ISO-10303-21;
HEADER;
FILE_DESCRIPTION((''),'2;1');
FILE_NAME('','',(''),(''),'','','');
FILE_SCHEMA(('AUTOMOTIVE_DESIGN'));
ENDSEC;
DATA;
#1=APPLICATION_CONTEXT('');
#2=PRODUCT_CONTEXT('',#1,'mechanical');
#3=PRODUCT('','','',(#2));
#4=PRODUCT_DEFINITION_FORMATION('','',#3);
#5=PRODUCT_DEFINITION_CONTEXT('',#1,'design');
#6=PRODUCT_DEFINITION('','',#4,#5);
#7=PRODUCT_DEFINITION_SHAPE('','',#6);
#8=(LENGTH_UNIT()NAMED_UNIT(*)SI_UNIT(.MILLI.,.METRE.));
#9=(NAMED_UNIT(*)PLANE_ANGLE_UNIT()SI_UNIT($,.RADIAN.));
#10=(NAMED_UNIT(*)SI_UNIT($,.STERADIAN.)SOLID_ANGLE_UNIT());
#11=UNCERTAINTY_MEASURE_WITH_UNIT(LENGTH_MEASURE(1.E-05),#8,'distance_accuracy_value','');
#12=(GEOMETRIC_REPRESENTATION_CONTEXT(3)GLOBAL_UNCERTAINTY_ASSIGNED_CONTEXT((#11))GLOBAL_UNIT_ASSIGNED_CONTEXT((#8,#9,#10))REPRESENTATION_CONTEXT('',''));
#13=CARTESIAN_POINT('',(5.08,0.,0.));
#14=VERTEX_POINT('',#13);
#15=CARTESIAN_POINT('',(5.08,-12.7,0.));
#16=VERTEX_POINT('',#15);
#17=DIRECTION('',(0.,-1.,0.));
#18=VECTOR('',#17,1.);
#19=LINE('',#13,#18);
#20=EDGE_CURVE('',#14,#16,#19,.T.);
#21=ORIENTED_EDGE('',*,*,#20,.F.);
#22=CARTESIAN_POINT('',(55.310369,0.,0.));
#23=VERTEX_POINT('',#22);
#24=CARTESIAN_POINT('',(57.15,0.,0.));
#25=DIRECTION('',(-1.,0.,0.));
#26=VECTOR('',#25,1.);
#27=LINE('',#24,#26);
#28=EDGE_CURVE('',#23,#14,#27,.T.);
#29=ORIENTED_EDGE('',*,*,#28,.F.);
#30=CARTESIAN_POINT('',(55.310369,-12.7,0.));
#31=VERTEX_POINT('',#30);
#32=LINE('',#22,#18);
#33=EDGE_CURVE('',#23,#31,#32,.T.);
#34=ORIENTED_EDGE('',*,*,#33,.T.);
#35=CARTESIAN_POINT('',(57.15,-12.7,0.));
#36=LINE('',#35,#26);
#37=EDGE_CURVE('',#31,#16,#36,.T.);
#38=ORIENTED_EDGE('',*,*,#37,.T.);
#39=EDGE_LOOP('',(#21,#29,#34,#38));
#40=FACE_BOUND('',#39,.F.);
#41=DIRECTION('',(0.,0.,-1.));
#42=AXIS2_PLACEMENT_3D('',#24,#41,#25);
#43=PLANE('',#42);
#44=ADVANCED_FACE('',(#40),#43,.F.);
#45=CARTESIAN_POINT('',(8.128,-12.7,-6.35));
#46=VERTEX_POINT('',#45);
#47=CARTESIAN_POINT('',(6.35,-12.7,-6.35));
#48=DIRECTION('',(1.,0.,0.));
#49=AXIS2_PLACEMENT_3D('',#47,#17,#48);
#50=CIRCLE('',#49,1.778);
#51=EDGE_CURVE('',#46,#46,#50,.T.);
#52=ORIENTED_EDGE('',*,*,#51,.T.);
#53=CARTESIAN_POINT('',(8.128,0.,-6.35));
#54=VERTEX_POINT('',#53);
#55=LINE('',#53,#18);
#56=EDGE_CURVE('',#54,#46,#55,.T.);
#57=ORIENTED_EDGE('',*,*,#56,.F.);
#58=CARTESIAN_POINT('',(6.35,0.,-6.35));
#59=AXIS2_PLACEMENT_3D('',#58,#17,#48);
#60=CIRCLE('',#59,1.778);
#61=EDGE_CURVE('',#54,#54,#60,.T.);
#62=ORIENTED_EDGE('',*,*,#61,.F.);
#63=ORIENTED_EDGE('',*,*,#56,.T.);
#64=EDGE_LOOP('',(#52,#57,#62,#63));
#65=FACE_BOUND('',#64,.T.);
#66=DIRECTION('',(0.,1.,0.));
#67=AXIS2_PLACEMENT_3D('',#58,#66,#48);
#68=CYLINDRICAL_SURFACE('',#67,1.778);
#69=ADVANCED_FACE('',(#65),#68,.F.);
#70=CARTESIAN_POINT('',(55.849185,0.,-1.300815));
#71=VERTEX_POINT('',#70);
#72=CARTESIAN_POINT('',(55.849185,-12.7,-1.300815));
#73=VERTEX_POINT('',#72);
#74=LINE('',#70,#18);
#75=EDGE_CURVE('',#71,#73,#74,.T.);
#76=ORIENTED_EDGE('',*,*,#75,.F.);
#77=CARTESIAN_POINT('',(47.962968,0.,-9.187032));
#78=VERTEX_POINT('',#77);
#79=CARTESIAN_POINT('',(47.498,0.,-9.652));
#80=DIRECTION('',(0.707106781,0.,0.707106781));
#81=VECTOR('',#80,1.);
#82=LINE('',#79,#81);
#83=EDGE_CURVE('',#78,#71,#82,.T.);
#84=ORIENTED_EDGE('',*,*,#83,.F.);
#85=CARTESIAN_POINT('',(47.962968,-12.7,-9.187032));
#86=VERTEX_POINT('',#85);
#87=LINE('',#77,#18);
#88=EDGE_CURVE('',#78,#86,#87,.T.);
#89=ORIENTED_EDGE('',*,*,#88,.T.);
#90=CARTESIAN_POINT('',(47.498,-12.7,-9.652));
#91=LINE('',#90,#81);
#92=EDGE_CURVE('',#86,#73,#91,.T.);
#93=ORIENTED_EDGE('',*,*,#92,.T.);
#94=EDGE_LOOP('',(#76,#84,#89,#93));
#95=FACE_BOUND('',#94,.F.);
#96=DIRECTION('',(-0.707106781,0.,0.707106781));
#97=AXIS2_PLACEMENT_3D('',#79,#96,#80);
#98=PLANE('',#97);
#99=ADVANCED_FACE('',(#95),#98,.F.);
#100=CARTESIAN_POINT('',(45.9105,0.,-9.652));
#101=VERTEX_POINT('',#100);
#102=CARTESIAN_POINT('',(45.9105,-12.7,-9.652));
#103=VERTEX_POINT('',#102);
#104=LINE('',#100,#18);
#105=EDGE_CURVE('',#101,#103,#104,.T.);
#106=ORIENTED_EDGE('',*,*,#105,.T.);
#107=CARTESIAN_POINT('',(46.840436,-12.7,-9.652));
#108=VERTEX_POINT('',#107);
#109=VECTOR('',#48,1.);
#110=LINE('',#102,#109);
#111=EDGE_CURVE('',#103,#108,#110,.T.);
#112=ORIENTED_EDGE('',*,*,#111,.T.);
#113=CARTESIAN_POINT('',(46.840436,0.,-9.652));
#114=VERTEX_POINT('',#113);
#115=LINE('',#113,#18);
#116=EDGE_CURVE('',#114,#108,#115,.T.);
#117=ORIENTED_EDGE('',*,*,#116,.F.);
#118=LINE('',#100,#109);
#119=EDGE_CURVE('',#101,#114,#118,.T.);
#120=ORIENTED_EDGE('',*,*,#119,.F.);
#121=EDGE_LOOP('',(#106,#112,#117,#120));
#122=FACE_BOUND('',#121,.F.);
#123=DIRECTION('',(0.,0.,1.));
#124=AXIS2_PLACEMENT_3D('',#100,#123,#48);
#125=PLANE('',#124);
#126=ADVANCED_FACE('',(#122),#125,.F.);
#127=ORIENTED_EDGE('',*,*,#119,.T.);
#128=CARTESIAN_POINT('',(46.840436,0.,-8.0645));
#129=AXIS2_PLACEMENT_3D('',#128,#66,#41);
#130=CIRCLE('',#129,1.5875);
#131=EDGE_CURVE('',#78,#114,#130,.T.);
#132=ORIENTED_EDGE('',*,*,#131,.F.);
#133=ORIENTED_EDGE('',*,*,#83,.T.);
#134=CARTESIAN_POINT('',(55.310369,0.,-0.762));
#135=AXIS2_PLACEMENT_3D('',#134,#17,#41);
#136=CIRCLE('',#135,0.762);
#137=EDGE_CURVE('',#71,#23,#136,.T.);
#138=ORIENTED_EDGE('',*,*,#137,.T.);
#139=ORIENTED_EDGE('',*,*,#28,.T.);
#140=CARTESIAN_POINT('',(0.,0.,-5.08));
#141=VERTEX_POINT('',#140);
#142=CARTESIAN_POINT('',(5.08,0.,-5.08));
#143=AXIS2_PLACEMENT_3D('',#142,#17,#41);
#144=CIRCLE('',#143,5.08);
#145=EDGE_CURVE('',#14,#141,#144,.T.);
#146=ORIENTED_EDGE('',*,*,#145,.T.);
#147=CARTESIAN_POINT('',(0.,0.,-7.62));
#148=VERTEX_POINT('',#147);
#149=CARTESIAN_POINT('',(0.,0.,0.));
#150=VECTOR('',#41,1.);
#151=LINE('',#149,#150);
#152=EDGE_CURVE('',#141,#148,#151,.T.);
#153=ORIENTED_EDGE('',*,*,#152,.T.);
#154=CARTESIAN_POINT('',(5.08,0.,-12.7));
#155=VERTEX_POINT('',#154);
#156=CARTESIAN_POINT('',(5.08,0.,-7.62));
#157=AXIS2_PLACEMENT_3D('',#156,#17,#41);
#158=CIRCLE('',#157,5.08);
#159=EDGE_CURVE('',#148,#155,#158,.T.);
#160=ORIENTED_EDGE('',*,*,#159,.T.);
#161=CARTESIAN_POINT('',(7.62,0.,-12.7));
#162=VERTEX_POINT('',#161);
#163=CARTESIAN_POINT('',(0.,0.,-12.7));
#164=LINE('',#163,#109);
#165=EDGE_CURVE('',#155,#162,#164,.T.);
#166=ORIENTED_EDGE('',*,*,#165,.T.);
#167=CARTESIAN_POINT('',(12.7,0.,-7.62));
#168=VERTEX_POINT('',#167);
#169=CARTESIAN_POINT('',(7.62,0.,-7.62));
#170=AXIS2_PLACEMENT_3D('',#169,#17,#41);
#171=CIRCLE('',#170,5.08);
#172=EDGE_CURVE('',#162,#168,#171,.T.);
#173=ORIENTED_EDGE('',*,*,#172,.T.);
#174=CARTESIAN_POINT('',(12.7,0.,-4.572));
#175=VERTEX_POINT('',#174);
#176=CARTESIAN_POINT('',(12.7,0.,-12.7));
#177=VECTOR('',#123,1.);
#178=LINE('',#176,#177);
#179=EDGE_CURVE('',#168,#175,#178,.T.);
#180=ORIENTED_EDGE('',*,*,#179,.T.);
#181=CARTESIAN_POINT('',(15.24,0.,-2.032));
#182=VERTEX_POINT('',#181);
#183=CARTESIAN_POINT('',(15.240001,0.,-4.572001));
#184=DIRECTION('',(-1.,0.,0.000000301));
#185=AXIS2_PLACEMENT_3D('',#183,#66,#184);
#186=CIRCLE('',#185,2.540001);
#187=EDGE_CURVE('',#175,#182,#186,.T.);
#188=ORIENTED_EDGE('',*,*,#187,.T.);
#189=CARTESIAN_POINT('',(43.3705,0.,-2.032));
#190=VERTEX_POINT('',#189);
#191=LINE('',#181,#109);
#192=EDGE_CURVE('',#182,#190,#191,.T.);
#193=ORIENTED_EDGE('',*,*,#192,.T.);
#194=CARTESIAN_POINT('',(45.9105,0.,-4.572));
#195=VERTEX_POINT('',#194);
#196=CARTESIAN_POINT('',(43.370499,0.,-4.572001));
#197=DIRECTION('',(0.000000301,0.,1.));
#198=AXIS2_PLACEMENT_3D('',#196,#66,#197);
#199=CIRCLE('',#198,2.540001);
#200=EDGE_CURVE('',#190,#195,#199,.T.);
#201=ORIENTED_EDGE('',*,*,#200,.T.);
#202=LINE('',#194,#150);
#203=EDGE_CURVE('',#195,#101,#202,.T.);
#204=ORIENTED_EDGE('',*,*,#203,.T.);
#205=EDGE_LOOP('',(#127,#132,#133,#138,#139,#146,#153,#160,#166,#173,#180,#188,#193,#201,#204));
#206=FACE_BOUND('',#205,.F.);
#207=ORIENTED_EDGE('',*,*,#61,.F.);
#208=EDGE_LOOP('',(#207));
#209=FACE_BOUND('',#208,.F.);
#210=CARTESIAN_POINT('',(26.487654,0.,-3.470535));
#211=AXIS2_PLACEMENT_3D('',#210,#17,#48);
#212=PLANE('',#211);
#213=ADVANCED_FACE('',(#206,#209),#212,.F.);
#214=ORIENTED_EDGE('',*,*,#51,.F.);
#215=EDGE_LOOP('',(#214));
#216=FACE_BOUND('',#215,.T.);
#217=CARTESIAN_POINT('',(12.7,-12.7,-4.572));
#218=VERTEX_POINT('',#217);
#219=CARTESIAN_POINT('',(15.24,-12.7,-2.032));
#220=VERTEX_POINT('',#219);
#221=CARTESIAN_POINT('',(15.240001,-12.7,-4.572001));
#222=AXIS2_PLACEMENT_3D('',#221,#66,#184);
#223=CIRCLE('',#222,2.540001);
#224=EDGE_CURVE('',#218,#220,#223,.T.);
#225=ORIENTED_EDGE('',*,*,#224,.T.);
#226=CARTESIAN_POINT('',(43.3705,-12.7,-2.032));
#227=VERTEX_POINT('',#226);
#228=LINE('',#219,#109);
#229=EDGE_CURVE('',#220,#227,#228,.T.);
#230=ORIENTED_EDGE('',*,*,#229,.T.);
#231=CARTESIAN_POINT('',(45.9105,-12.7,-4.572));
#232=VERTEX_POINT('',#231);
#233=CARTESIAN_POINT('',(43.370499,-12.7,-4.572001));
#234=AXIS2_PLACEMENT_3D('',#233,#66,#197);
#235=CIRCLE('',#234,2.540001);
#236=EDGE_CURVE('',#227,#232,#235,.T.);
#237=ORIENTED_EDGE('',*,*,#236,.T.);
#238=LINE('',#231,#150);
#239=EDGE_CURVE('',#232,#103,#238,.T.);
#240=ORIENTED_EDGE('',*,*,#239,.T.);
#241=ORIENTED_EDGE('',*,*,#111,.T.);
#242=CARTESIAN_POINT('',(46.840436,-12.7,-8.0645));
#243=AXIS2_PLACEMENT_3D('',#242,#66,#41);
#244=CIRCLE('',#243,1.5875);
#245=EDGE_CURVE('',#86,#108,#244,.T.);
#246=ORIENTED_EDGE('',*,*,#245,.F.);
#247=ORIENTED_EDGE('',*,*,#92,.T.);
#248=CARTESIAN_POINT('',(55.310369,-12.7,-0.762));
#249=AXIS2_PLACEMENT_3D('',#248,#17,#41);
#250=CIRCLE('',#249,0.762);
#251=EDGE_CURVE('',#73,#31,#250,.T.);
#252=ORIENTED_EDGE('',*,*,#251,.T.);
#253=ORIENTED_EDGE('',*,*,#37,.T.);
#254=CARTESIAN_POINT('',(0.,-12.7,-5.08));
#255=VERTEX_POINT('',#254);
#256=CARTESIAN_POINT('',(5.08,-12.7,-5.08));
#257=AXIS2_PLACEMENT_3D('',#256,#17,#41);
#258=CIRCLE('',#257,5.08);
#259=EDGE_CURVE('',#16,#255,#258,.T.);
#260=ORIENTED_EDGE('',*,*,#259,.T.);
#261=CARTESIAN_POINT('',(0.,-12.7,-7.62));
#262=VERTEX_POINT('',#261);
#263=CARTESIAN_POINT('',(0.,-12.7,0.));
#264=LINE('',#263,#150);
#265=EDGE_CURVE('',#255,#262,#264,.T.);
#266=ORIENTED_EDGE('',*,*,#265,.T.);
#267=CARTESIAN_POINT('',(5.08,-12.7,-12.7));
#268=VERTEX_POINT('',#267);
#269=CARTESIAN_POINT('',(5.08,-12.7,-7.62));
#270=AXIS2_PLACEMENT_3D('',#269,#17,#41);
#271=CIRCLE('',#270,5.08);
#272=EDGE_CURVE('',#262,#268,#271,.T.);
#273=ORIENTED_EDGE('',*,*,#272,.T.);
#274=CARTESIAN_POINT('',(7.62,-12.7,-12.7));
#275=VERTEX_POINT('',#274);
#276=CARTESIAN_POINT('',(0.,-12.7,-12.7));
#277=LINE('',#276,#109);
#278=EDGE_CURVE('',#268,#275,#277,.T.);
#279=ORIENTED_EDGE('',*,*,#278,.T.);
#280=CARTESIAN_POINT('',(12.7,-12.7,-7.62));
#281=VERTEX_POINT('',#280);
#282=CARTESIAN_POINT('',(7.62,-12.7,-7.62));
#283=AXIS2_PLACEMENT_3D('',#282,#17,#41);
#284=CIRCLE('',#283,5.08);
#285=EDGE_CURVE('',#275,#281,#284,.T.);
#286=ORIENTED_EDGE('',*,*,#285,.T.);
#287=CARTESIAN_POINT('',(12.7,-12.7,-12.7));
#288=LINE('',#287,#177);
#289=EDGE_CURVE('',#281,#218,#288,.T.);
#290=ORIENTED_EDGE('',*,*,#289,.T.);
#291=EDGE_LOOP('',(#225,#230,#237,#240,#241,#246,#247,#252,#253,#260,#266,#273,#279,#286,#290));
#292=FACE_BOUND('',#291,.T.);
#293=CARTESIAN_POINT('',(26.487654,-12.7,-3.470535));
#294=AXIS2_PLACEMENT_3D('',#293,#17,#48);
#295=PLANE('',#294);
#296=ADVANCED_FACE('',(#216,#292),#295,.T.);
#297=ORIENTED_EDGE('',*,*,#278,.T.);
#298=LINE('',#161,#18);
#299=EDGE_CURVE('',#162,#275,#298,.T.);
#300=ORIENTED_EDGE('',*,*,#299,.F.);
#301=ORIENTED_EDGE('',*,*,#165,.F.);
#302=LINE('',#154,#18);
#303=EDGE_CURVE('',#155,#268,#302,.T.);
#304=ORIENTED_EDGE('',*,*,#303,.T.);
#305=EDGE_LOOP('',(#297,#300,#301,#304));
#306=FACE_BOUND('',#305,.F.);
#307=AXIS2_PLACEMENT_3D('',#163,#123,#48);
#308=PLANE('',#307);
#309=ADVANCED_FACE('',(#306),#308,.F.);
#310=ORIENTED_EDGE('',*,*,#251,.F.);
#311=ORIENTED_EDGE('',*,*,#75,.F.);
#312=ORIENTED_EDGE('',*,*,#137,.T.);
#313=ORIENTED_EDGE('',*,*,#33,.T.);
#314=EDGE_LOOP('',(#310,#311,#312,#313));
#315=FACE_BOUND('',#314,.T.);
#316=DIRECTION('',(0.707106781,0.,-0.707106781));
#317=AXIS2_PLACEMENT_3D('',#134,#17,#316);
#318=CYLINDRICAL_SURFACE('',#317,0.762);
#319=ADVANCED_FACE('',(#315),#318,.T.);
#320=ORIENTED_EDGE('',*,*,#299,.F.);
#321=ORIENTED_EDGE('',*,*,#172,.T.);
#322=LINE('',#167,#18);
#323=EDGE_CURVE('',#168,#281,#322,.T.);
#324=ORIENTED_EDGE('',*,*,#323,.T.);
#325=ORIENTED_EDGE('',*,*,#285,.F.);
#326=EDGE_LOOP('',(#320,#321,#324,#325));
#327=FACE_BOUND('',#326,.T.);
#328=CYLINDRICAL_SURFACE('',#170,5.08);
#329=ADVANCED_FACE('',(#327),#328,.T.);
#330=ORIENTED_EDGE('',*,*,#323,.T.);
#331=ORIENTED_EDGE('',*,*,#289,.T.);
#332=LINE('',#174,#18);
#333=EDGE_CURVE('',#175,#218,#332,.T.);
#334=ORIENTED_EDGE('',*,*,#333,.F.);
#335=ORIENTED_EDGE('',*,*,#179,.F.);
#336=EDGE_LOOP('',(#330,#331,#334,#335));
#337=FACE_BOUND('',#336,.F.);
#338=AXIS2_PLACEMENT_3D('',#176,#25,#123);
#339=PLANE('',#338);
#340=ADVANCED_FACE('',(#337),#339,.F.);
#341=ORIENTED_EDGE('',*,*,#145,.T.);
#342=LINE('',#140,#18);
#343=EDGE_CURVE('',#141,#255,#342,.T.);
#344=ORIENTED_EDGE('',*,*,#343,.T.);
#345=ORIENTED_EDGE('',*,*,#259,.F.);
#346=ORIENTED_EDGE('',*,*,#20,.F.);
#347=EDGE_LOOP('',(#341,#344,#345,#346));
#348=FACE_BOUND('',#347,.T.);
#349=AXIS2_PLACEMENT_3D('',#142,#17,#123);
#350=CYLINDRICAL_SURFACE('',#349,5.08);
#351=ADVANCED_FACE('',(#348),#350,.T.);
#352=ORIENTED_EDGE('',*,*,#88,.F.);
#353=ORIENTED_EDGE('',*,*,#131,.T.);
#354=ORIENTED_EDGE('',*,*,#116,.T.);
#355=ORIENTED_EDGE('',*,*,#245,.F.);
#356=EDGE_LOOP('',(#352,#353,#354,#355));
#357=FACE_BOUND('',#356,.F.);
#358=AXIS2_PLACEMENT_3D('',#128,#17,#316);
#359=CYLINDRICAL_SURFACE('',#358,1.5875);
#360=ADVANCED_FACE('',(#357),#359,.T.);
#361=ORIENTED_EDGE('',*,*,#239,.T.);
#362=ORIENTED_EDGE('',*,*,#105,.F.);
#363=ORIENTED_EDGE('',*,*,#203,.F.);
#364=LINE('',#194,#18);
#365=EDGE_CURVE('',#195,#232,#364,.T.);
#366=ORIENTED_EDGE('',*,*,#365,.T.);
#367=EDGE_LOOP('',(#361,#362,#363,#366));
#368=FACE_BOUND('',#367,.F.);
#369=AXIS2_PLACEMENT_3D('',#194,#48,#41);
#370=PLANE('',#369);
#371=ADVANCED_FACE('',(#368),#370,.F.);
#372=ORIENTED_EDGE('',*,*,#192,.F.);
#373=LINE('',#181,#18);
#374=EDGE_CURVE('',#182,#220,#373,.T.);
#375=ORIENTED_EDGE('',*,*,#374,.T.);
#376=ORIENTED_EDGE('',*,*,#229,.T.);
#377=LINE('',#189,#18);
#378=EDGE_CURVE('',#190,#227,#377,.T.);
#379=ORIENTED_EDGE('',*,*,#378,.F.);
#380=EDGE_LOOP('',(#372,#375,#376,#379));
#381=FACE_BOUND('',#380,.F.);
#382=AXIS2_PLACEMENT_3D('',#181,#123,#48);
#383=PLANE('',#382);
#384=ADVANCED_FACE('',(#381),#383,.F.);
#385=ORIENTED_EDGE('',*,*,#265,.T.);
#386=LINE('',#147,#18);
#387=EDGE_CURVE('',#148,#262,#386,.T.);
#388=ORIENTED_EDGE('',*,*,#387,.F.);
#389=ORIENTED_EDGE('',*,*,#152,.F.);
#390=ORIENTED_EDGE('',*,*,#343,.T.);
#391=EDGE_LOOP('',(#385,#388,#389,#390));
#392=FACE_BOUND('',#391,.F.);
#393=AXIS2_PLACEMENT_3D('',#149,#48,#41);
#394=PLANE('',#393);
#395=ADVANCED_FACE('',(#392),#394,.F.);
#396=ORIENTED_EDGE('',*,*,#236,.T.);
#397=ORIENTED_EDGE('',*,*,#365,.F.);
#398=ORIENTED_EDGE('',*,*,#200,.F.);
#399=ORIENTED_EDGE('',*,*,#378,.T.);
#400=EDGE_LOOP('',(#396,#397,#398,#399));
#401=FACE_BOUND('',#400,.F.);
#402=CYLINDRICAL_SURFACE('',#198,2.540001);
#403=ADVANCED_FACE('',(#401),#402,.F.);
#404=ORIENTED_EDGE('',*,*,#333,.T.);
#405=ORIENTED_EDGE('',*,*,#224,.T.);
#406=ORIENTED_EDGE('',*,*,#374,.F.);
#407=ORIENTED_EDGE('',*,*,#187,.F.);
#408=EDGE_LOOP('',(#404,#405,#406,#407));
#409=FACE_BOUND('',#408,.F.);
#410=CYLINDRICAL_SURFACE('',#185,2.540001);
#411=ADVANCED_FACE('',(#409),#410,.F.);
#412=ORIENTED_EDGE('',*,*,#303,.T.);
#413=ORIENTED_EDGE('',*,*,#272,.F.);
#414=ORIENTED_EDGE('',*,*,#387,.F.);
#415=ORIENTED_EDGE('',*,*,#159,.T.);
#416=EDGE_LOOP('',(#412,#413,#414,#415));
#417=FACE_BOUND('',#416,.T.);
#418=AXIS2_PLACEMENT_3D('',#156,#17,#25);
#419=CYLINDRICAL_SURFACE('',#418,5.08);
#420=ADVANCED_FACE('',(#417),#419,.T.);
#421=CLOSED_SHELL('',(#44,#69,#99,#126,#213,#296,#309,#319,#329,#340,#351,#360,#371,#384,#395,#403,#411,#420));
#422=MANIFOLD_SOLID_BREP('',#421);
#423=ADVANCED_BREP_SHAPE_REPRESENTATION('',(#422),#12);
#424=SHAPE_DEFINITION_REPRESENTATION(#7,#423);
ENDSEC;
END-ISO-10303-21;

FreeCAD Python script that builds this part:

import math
import FreeCAD as App
import Part
import Sketcher

V = App.Vector
Q = App.Units.Quantity


def edges_at(feature, points):
    """Names of the edges that pass closest to the given points."""
    edges = feature.Shape.Edges
    near = lambda p: min(range(len(edges)), key=lambda i: edges[i].distToShape(Part.Vertex(*p))[0])
    return sorted({f"Edge{near(p) + 1}" for p in points})

doc = App.newDocument("Part")
body = doc.addObject("PartDesign::Body", "Body")

sketch1 = body.newObject("Sketcher::SketchObject", "Sketch")
sketch1.AttachmentSupport = (doc.getObject("XZ_Plane"), [""])
sketch1.MapMode = "FlatFace"
sketch1.addGeometry([
    Part.LineSegment(V(57.1, 0, 0), V(0, 0, 0)),
    Part.LineSegment(V(0, 0, 0), V(0, -12.7, 0)),
    Part.LineSegment(V(0, -12.7, 0), V(12.7, -12.7, 0)),
    Part.LineSegment(V(12.7, -12.7, 0), V(12.7, -4.6, 0)),
    Part.ArcOfCircle(Part.Circle(V(15.2, -4.6, 0), V(0, 0, 1), 2.5), math.radians(90), math.radians(180)),
    Part.LineSegment(V(15.2, -2, 0), V(43.4, -2, 0)),
    Part.ArcOfCircle(Part.Circle(V(43.4, -4.6, 0), V(0, 0, 1), 2.5), math.radians(0), math.radians(90)),
    Part.LineSegment(V(45.9, -4.6, 0), V(45.9, -9.7, 0)),
    Part.LineSegment(V(45.9, -9.7, 0), V(47.5, -9.7, 0)),
    Part.LineSegment(V(47.5, -9.7, 0), V(57.1, 0, 0)),
    Part.Circle(V(6.3, -6.3, 0), V(0, 0, 1), 1.8),
], False)
sketch1.addConstraint([
    Sketcher.Constraint("Coincident", 0, 2, 1, 1),
    Sketcher.Constraint("Coincident", 1, 2, 2, 1),
    Sketcher.Constraint("Coincident", 2, 2, 3, 1),
    Sketcher.Constraint("Tangent", 3, 2, 4, 2),
    Sketcher.Constraint("Tangent", 4, 1, 5, 1),
    Sketcher.Constraint("Tangent", 5, 2, 6, 2),
    Sketcher.Constraint("Tangent", 6, 1, 7, 1),
    Sketcher.Constraint("Coincident", 7, 2, 8, 1),
    Sketcher.Constraint("Coincident", 8, 2, 9, 1),
    Sketcher.Constraint("Coincident", 9, 2, 0, 1),
    Sketcher.Constraint("Horizontal", 0),
    Sketcher.Constraint("Vertical", 1),
    Sketcher.Constraint("Horizontal", 2),
    Sketcher.Constraint("Vertical", 3),
    Sketcher.Constraint("Horizontal", 5),
    Sketcher.Constraint("Vertical", 7),
    Sketcher.Constraint("Horizontal", 8),
    Sketcher.Constraint("Coincident", 0, 2, -1, 1),
    Sketcher.Constraint("Equal", 4, 6),
    Sketcher.Constraint("Equal", 2, 1),
    Sketcher.Constraint("Radius", 4, Q("0.1 in")),
    Sketcher.Constraint("Diameter", 10, Q("0.14 in")),
    Sketcher.Constraint("DistanceX", 2, 1, 2, 2, Q("0.5 in")),
    Sketcher.Constraint("DistanceY", 7, 2, 7, 1, Q("0.2 in")),
    Sketcher.Constraint("Angle", 9, Q("45 deg")),
    Sketcher.Constraint("DistanceX", 0, 2, 0, 1, Q("2.25 in")),
    Sketcher.Constraint("DistanceY", 3, 1, 3, 2, Q("0.32 in")),
    Sketcher.Constraint("DistanceX", 8, 1, 8, 2, Q("0.0625 in")),
    Sketcher.Constraint("DistanceX", -1, 1, 10, 3, Q("0.25 in")),
    Sketcher.Constraint("DistanceY", 10, 3, -1, 1, Q("0.25 in")),
])
pad1 = body.newObject("PartDesign::Pad", "Pad")
pad1.Profile = sketch1
pad1.Length = Q("0.5 in")
doc.recompute()

fillet = body.newObject("PartDesign::Fillet", "Fillet")
fillet.Base = (pad1, edges_at(pad1, [(47.498, -6.35, -9.652)]))
fillet.Radius = Q("0.0625 in")
doc.recompute()

fillet2 = body.newObject("PartDesign::Fillet", "Fillet001")
fillet2.Base = (fillet, edges_at(fillet, [(57.15, -6.35, 0)]))
fillet2.Radius = Q("0.03 in")
doc.recompute()

fillet3 = body.newObject("PartDesign::Fillet", "Fillet002")
fillet3.Base = (fillet2, edges_at(fillet2, [(0, -6.35, -12.7), (12.7, -6.35, -12.7), (0, -6.35, 0)]))
fillet3.Radius = Q("0.2 in")

doc.recompute()
